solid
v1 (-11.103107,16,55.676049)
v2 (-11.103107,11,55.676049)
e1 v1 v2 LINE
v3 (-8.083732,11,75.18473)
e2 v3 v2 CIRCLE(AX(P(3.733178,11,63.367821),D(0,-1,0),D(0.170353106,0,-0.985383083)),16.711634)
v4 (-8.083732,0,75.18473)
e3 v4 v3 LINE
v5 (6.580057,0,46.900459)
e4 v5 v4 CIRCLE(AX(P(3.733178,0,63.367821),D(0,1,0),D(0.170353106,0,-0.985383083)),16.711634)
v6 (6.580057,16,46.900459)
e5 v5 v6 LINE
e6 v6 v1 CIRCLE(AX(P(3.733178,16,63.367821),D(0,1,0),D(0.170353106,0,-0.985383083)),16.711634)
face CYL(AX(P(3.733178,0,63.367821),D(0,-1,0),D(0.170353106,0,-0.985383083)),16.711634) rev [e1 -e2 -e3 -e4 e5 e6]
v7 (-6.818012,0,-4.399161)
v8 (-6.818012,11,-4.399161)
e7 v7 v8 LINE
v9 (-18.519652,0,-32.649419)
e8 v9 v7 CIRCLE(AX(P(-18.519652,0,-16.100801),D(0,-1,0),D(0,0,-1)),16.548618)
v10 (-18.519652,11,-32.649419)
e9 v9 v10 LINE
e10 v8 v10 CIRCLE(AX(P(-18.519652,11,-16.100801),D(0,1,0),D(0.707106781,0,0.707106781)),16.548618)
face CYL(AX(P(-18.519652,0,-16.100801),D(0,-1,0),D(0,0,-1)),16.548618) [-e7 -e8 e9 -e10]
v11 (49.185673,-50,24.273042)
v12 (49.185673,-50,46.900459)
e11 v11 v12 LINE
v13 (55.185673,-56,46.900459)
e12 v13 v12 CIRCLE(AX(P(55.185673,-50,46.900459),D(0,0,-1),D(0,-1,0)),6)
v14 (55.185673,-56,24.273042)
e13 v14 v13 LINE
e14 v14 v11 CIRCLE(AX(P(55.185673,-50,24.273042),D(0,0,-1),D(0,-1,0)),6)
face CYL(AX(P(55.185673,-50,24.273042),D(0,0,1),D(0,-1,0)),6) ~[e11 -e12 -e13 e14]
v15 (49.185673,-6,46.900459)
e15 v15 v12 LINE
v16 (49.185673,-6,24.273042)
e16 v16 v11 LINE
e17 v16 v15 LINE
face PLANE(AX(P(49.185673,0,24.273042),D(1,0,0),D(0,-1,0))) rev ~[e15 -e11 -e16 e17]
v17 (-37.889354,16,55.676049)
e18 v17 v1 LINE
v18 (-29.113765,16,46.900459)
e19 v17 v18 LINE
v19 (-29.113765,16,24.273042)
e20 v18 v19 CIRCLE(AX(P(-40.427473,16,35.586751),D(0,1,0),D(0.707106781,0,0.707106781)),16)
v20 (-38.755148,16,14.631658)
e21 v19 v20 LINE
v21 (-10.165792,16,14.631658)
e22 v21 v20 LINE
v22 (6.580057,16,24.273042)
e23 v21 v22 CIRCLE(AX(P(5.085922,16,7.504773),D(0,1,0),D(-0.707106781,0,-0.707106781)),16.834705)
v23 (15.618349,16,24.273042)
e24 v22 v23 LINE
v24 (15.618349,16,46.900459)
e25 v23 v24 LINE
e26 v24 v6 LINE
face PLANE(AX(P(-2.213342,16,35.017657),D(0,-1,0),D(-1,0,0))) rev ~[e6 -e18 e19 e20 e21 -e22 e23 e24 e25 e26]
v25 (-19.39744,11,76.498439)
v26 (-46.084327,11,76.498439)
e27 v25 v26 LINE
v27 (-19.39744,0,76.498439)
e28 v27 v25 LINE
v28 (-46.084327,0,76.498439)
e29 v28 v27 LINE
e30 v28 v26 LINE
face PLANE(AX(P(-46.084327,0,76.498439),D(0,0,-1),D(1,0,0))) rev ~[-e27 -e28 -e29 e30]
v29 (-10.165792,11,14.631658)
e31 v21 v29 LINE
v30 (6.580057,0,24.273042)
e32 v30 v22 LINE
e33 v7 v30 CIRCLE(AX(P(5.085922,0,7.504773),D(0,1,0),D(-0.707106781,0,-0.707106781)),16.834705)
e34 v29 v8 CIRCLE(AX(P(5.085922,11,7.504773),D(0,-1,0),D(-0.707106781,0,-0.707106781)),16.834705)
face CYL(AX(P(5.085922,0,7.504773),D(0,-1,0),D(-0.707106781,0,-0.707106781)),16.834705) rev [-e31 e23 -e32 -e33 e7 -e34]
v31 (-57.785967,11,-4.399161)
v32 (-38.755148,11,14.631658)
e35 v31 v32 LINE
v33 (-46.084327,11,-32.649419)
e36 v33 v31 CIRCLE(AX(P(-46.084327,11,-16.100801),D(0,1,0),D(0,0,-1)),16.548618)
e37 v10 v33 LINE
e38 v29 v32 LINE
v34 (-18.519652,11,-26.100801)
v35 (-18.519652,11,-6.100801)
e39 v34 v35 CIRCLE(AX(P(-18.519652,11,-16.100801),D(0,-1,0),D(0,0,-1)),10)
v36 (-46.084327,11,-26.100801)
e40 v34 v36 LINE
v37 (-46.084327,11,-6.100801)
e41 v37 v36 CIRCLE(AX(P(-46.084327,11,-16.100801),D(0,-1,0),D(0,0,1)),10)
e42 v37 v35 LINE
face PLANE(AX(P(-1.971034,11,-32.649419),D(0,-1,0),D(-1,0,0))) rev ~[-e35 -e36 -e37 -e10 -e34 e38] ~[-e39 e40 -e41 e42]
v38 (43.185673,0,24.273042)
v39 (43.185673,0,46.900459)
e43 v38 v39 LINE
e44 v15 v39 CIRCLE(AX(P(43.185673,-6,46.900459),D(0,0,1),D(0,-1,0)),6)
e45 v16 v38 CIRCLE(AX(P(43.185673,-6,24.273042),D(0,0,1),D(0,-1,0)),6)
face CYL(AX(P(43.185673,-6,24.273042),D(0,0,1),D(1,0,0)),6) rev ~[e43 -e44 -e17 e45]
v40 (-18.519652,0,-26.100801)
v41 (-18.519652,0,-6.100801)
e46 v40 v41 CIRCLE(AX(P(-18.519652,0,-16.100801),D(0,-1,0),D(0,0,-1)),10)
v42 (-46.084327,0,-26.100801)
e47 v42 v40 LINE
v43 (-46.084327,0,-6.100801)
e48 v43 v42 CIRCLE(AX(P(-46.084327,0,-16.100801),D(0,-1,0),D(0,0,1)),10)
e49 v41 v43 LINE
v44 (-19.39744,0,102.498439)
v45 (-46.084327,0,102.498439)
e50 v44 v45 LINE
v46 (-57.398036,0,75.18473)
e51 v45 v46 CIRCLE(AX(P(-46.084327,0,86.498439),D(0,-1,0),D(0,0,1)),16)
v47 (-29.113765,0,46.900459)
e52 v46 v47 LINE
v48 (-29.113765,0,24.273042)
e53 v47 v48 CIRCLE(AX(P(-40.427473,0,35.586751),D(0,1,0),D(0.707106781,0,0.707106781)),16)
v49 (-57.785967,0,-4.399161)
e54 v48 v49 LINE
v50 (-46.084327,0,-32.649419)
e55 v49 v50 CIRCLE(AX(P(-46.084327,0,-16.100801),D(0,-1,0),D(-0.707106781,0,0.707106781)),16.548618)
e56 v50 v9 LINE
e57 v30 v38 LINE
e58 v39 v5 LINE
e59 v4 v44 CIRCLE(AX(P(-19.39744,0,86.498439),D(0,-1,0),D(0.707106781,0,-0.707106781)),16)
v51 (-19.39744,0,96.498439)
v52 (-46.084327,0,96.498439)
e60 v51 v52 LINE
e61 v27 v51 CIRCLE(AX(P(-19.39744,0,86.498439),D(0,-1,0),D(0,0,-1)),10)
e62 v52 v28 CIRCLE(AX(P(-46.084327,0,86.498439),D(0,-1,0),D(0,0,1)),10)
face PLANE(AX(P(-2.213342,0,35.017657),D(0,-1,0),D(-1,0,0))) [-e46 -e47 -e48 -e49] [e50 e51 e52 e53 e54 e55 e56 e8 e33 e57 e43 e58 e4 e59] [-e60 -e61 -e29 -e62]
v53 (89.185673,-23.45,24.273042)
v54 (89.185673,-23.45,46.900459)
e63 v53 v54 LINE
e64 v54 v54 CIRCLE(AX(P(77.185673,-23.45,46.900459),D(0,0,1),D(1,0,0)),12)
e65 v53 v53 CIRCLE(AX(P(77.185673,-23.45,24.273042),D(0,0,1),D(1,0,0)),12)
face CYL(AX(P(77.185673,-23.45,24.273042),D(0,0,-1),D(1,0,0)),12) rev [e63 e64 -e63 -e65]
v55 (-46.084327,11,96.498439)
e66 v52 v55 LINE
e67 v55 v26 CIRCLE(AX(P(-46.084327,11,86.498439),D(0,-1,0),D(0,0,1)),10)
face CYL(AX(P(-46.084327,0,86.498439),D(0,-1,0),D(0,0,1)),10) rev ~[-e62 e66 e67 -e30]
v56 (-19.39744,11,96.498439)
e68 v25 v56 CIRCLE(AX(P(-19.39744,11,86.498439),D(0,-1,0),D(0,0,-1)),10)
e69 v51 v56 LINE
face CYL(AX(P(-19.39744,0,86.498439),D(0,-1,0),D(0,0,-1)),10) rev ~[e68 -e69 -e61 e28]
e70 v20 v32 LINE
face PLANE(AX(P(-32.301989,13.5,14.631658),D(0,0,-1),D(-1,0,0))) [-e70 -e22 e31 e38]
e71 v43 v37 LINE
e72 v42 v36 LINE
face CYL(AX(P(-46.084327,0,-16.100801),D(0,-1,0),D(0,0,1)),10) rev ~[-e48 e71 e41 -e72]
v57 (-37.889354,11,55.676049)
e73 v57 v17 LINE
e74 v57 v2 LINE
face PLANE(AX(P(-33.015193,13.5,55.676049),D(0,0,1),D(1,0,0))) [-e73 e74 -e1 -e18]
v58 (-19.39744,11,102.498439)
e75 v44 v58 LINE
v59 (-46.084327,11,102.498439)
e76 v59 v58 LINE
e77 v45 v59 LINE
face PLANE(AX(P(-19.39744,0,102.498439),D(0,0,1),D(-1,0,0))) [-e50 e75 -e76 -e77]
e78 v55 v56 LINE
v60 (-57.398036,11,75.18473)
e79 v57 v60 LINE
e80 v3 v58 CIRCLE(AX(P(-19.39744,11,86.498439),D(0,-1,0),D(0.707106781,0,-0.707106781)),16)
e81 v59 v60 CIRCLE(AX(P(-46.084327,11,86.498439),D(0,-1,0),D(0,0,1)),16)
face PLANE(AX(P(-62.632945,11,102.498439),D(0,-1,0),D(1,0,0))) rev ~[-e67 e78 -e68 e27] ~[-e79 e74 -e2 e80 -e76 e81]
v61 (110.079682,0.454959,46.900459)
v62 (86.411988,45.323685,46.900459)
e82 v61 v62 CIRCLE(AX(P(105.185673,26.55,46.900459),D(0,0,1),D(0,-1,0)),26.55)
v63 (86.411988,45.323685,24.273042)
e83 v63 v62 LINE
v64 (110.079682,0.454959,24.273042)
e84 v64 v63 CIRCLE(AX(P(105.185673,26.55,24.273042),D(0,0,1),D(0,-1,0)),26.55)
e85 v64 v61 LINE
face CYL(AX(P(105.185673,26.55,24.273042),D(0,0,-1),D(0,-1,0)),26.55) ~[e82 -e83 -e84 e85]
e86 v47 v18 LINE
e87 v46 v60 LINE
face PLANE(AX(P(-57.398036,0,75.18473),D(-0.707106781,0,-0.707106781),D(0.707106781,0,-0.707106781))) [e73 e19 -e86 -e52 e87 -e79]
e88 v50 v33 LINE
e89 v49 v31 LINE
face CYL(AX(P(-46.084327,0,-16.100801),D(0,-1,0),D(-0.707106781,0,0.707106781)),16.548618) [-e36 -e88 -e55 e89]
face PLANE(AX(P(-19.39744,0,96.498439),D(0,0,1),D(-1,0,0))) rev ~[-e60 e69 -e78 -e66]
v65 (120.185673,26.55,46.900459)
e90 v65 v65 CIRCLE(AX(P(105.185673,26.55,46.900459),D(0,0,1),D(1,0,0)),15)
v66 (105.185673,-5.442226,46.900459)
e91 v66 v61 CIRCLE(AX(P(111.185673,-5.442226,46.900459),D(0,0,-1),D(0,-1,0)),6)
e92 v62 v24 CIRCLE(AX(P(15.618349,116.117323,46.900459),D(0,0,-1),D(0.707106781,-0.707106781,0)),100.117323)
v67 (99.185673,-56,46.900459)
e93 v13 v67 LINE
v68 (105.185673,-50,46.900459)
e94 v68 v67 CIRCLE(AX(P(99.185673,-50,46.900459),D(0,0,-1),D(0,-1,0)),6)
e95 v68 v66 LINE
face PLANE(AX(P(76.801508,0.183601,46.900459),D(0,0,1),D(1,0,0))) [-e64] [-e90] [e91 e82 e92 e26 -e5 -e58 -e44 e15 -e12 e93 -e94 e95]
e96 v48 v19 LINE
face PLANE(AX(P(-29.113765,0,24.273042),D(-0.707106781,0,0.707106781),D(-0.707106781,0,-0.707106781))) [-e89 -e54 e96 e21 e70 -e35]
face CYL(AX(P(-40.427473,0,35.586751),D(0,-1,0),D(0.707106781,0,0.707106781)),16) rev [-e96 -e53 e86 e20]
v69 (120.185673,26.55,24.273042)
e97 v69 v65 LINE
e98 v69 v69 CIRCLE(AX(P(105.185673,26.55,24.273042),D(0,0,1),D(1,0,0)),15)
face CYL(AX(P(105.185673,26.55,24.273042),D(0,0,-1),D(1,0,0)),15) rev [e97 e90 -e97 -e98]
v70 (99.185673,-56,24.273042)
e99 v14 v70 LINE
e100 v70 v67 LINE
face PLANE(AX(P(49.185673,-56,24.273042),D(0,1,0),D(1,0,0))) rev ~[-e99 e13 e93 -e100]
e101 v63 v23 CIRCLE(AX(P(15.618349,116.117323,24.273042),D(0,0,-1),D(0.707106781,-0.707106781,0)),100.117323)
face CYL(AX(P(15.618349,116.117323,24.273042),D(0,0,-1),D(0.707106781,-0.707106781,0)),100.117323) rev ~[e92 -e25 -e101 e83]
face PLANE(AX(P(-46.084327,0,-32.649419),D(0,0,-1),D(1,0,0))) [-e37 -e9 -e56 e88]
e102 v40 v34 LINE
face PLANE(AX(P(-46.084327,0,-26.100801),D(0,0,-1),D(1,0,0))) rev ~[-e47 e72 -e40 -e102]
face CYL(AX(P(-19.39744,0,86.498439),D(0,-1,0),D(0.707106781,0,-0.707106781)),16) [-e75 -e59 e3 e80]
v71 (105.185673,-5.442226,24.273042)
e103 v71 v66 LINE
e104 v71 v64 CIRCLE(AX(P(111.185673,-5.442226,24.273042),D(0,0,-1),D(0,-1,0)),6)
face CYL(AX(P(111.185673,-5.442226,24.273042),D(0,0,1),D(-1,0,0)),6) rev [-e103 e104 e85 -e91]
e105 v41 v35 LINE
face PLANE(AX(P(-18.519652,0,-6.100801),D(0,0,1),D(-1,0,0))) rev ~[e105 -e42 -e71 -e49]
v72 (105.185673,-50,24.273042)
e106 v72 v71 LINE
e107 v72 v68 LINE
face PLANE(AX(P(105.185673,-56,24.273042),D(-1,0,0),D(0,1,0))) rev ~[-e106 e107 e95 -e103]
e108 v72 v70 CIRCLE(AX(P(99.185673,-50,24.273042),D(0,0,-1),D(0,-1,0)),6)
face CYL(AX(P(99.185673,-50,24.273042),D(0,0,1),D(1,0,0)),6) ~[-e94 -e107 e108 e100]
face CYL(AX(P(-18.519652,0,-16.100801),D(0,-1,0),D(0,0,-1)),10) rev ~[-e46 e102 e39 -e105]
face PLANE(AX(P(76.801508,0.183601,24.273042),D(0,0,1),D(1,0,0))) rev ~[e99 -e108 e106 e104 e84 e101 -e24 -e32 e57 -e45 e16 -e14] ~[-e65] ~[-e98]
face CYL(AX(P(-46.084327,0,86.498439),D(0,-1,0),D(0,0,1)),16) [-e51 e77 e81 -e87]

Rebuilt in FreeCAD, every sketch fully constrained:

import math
import FreeCAD as App
import Part
import Sketcher

V = App.Vector


def edges_at(feature, points):
    """Names of the edges that pass closest to the given points."""
    edges = feature.Shape.Edges
    near = lambda p: min(range(len(edges)), key=lambda i: edges[i].distToShape(Part.Vertex(*p))[0])
    return sorted({f"Edge{near(p) + 1}" for p in points})

doc = App.newDocument("Part")
body = doc.addObject("PartDesign::Body", "Body")

# Sketch on XZ plane
sketch1 = body.newObject("Sketcher::SketchObject", "Sketch")
sketch1.AttachmentSupport = (doc.getObject("XZ_Plane"), [""])
sketch1.MapMode = "FlatFace"
sketch1.addGeometry(Part.LineSegment(V(-18.519652, -32.649419, 0), V(-46.084327, -32.649419, 0)), False)
sketch1.addGeometry(Part.ArcOfCircle(Part.Circle(V(-46.084327, -16.100801, 0), V(0, 0, 1), 16.548618), math.radians(135), math.radians(270)), False)
sketch1.addGeometry(Part.LineSegment(V(-57.785967, -4.399161, 0), V(-29.113765, 24.273042, 0)), False)
sketch1.addGeometry(Part.ArcOfCircle(Part.Circle(V(-40.427473, 35.586751, 0), V(0, 0, 1), 16), math.radians(-45), math.radians(45)), False)
sketch1.addGeometry(Part.LineSegment(V(-29.113765, 46.900459, 0), V(-57.398036, 75.18473, 0)), False)
sketch1.addGeometry(Part.ArcOfCircle(Part.Circle(V(-46.084327, 86.498439, 0), V(0, 0, 1), 16), math.radians(90), math.radians(225)), False)
sketch1.addGeometry(Part.LineSegment(V(-46.084327, 102.498439, 0), V(-19.39744, 102.498439, 0)), False)
sketch1.addGeometry(Part.ArcOfCircle(Part.Circle(V(-19.39744, 86.498439, 0), V(0, 0, 1), 16), math.radians(-45), math.radians(90)), False)
sketch1.addGeometry(Part.ArcOfCircle(Part.Circle(V(3.733178, 63.367821, 0), V(0, 0, 1), 16.711634), math.radians(135), math.radians(279.80835)), False)
sketch1.addGeometry(Part.LineSegment(V(6.580057, 46.900459, 0), V(89.580057, 46.900459, 0)), False)
sketch1.addGeometry(Part.LineSegment(V(89.580057, 46.900459, 0), V(89.580057, 24.273042, 0)), False)
sketch1.addGeometry(Part.LineSegment(V(89.580057, 24.273042, 0), V(6.580057, 24.273042, 0)), False)
sketch1.addGeometry(Part.ArcOfCircle(Part.Circle(V(5.085922, 7.504773, 0), V(0, 0, 1), 16.834705), math.radians(84.908114), math.radians(225)), False)
sketch1.addGeometry(Part.ArcOfCircle(Part.Circle(V(-18.519652, -16.100801, 0), V(0, 0, 1), 16.548618), math.radians(-90), math.radians(45)), False)
sketch1.addGeometry(Part.LineSegment(V(-46.084327, 76.498439, 0), V(-19.39744, 76.498439, 0)), False)
sketch1.addGeometry(Part.ArcOfCircle(Part.Circle(V(-19.39744, 86.498439, 0), V(0, 0, 1), 10), math.radians(-90), math.radians(90)), False)
sketch1.addGeometry(Part.LineSegment(V(-19.39744, 96.498439, 0), V(-46.084327, 96.498439, 0)), False)
sketch1.addGeometry(Part.ArcOfCircle(Part.Circle(V(-46.084327, 86.498439, 0), V(0, 0, 1), 10), math.radians(90), math.radians(270)), False)
sketch1.addGeometry(Part.LineSegment(V(-46.084327, -26.100801, 0), V(-18.519652, -26.100801, 0)), False)
sketch1.addGeometry(Part.ArcOfCircle(Part.Circle(V(-18.519652, -16.100801, 0), V(0, 0, 1), 10), math.radians(-90), math.radians(90)), False)
sketch1.addGeometry(Part.LineSegment(V(-18.519652, -6.100801, 0), V(-46.084327, -6.100801, 0)), False)
sketch1.addGeometry(Part.ArcOfCircle(Part.Circle(V(-46.084327, -16.100801, 0), V(0, 0, 1), 10), math.radians(90), math.radians(270)), False)
sketch1.addConstraint(Sketcher.Constraint("Tangent", 0, 2, 1, 2))
sketch1.addConstraint(Sketcher.Constraint("Tangent", 1, 1, 2, 1))
sketch1.addConstraint(Sketcher.Constraint("Tangent", 2, 2, 3, 1))
sketch1.addConstraint(Sketcher.Constraint("Tangent", 3, 2, 4, 1))
sketch1.addConstraint(Sketcher.Constraint("Tangent", 4, 2, 5, 2))
sketch1.addConstraint(Sketcher.Constraint("Tangent", 5, 1, 6, 1))
sketch1.addConstraint(Sketcher.Constraint("Tangent", 6, 2, 7, 2))
sketch1.addConstraint(Sketcher.Constraint("Tangent", 7, 1, 8, 1))
sketch1.addConstraint(Sketcher.Constraint("Coincident", 8, 2, 9, 1))
sketch1.addConstraint(Sketcher.Constraint("Coincident", 9, 2, 10, 1))
sketch1.addConstraint(Sketcher.Constraint("Coincident", 10, 2, 11, 1))
sketch1.addConstraint(Sketcher.Constraint("Coincident", 11, 2, 12, 1))
sketch1.addConstraint(Sketcher.Constraint("Tangent", 12, 2, 13, 2))
sketch1.addConstraint(Sketcher.Constraint("Tangent", 13, 1, 0, 1))
sketch1.addConstraint(Sketcher.Constraint("Tangent", 14, 2, 15, 1))
sketch1.addConstraint(Sketcher.Constraint("Tangent", 15, 2, 16, 1))
sketch1.addConstraint(Sketcher.Constraint("Tangent", 16, 2, 17, 1))
sketch1.addConstraint(Sketcher.Constraint("Tangent", 17, 2, 14, 1))
sketch1.addConstraint(Sketcher.Constraint("Tangent", 18, 2, 19, 1))
sketch1.addConstraint(Sketcher.Constraint("Tangent", 19, 2, 20, 1))
sketch1.addConstraint(Sketcher.Constraint("Tangent", 20, 2, 21, 1))
sketch1.addConstraint(Sketcher.Constraint("Tangent", 21, 2, 18, 1))
sketch1.addConstraint(Sketcher.Constraint("Horizontal", 0))
sketch1.addConstraint(Sketcher.Constraint("Horizontal", 6))
sketch1.addConstraint(Sketcher.Constraint("Horizontal", 9))
sketch1.addConstraint(Sketcher.Constraint("Vertical", 10))
sketch1.addConstraint(Sketcher.Constraint("Horizontal", 11))
sketch1.addConstraint(Sketcher.Constraint("Horizontal", 14))
sketch1.addConstraint(Sketcher.Constraint("Horizontal", 16))
sketch1.addConstraint(Sketcher.Constraint("Horizontal", 18))
sketch1.addConstraint(Sketcher.Constraint("Horizontal", 20))
sketch1.addConstraint(Sketcher.Constraint("Coincident", 15, 3, 7, 3))
sketch1.addConstraint(Sketcher.Constraint("Coincident", 17, 3, 5, 3))
sketch1.addConstraint(Sketcher.Constraint("Coincident", 19, 3, 13, 3))
sketch1.addConstraint(Sketcher.Constraint("Coincident", 21, 3, 1, 3))
sketch1.addConstraint(Sketcher.Constraint("Equal", 3, 5))
sketch1.addConstraint(Sketcher.Constraint("Equal", 17, 19))
sketch1.addConstraint(Sketcher.Constraint("Perpendicular", 2, 4))
sketch1.addConstraint(Sketcher.Constraint("Horizontal", 4, 2, 7, 1))
sketch1.addConstraint(Sketcher.Constraint("Horizontal", 3, 2, 8, 2))
sketch1.addConstraint(Sketcher.Constraint("Horizontal", 2, 2, 10, 2))
sketch1.addConstraint(Sketcher.Constraint("Horizontal", 1, 1, 12, 2))
sketch1.addConstraint(Sketcher.Constraint("Vertical", 1, 3, 5, 3))
sketch1.addConstraint(Sketcher.Constraint("Vertical", 2, 2, 3, 2))
sketch1.addConstraint(Sketcher.Constraint("Vertical", 8, 2, 11, 2))
sketch1.addConstraint(Sketcher.Constraint("Radius", 3, 16.0))
sketch1.addConstraint(Sketcher.Constraint("Radius", 15, 10.0))
sketch1.addConstraint(Sketcher.Constraint("DistanceX", 9, 1, 9, 2, 83.0))
sketch1.addConstraint(Sketcher.Constraint("Distance", 4, 40.0))
sketch1.addConstraint(Sketcher.Constraint("Radius", 1, 16.548618))
sketch1.addConstraint(Sketcher.Constraint("Radius", 8, 16.711634))
sketch1.addConstraint(Sketcher.Constraint("Radius", 12, 16.834705))
sketch1.addConstraint(Sketcher.Constraint("DistanceY", 1, 3, -1, 1, 16.100801))
sketch1.addConstraint(Sketcher.Constraint("DistanceX", 0, 2, 0, 1, 27.564676))
sketch1.addConstraint(Sketcher.Constraint("DistanceX", 7, 3, -1, 1, 19.39744))
pad1 = body.newObject("PartDesign::Pad", "Pad")
pad1.Profile = sketch1
pad1.Length = 16
pad1.Reversed = True

# Sketch on XY plane
sketch2 = body.newObject("Sketcher::SketchObject", "Sketch001")
sketch2.AttachmentSupport = (doc.getObject("XY_Plane"), [""])
sketch2.MapMode = "FlatFace"
sketch2.AttachmentOffset = App.Placement(V(0, 0, 24.273042), App.Rotation())
sketch2.addGeometry(Part.LineSegment(V(105.185673, -56, 0), V(105.185673, 0, 0)), False)
sketch2.addGeometry(Part.ArcOfCircle(Part.Circle(V(105.185673, 26.55, 0), V(0, 0, 1), 26.55), math.radians(-90), math.radians(135)), False)
sketch2.addGeometry(Part.ArcOfCircle(Part.Circle(V(15.618349, 116.117323, 0), V(0, 0, 1), 100.117323), math.radians(-90), math.radians(-45)), False)
sketch2.addGeometry(Part.LineSegment(V(15.618349, 16, 0), V(89.580057, 16, 0)), False)
sketch2.addGeometry(Part.LineSegment(V(89.580057, 16, 0), V(89.580057, 0, 0)), False)
sketch2.addGeometry(Part.LineSegment(V(89.580057, 0, 0), V(49.185673, 0, 0)), False)
sketch2.addGeometry(Part.LineSegment(V(49.185673, 0, 0), V(49.185673, -56, 0)), False)
sketch2.addGeometry(Part.LineSegment(V(49.185673, -56, 0), V(105.185673, -56, 0)), False)
sketch2.addGeometry(Part.Circle(V(77.185673, -23.45, 0), V(0, 0, 1), 12), False)
sketch2.addGeometry(Part.Circle(V(105.185673, 26.55, 0), V(0, 0, 1), 15), False)
sketch2.addConstraint(Sketcher.Constraint("Coincident", 0, 2, 1, 1))
sketch2.addConstraint(Sketcher.Constraint("Tangent", 1, 2, 2, 2))
sketch2.addConstraint(Sketcher.Constraint("Tangent", 2, 1, 3, 1))
sketch2.addConstraint(Sketcher.Constraint("Coincident", 3, 2, 4, 1))
sketch2.addConstraint(Sketcher.Constraint("Coincident", 4, 2, 5, 1))
sketch2.addConstraint(Sketcher.Constraint("Coincident", 5, 2, 6, 1))
sketch2.addConstraint(Sketcher.Constraint("Coincident", 6, 2, 7, 1))
sketch2.addConstraint(Sketcher.Constraint("Coincident", 7, 2, 0, 1))
sketch2.addConstraint(Sketcher.Constraint("Vertical", 0))
sketch2.addConstraint(Sketcher.Constraint("Horizontal", 3))
sketch2.addConstraint(Sketcher.Constraint("Vertical", 4))
sketch2.addConstraint(Sketcher.Constraint("Horizontal", 5))
sketch2.addConstraint(Sketcher.Constraint("Vertical", 6))
sketch2.addConstraint(Sketcher.Constraint("Horizontal", 7))
sketch2.addConstraint(Sketcher.Constraint("Coincident", 9, 3, 1, 3))
sketch2.addConstraint(Sketcher.Constraint("PointOnObject", 0, 2, -1))
sketch2.addConstraint(Sketcher.Constraint("PointOnObject", 4, 2, -1))
sketch2.addConstraint(Sketcher.Constraint("Vertical", 9, 3, 0, 2))
sketch2.addConstraint(Sketcher.Constraint("Equal", 7, 0))
sketch2.addConstraint(Sketcher.Constraint("Diameter", 8, 24.0))
sketch2.addConstraint(Sketcher.Constraint("Diameter", 9, 30.0))
sketch2.addConstraint(Sketcher.Constraint("DistanceX", 7, 1, 7, 2, 56.0))
sketch2.addConstraint(Sketcher.Constraint("DistanceY", 4, 2, 4, 1, 16.0))
sketch2.addConstraint(Sketcher.Constraint("Radius", 1, 26.55))
sketch2.addConstraint(Sketcher.Constraint("DistanceX", 8, 3, 1, 3, 28.0))
sketch2.addConstraint(Sketcher.Constraint("DistanceY", 8, 3, 1, 3, 50.0))
sketch2.addConstraint(Sketcher.Constraint("Radius", 2, 100.117323))
sketch2.addConstraint(Sketcher.Constraint("DistanceX", 3, 1, 3, 2, 73.961707))
sketch2.addConstraint(Sketcher.Constraint("DistanceX", -1, 1, 2, 3, 15.618349))
pad2 = body.newObject("PartDesign::Pad", "Pad001")
pad2.Profile = sketch2
pad2.Length = 22.627417
doc.recompute()

fillet = body.newObject("PartDesign::Fillet", "Fillet")
fillet.Base = (pad2, edges_at(pad2, [
    (105.186, 0, 35.587),
    (105.186, -56, 35.587),
    (49.186, -56, 35.587),
    (49.186, 0, 35.587),
]))
fillet.Radius = 6

# Sketch on XY plane
sketch3 = body.newObject("Sketcher::SketchObject", "Sketch002")
sketch3.AttachmentSupport = (doc.getObject("XY_Plane"), [""])
sketch3.MapMode = "FlatFace"
sketch3.AttachmentOffset = App.Placement(V(0, 0, 102.498439), App.Rotation())
sketch3.addGeometry(Part.LineSegment(V(-62.632945, 16, 0), V(-62.632945, 11, 0)), False)
sketch3.addGeometry(Part.LineSegment(V(-62.632945, 11, 0), V(-3.39744, 11, 0)), False)
sketch3.addGeometry(Part.LineSegment(V(-3.39744, 11, 0), V(-3.39744, 16, 0)), False)
sketch3.addGeometry(Part.LineSegment(V(-3.39744, 16, 0), V(-62.632945, 16, 0)), False)
sketch3.addConstraint(Sketcher.Constraint("Coincident", 0, 2, 1, 1))
sketch3.addConstraint(Sketcher.Constraint("Coincident", 1, 2, 2, 1))
sketch3.addConstraint(Sketcher.Constraint("Coincident", 2, 2, 3, 1))
sketch3.addConstraint(Sketcher.Constraint("Coincident", 3, 2, 0, 1))
sketch3.addConstraint(Sketcher.Constraint("Vertical", 0))
sketch3.addConstraint(Sketcher.Constraint("Horizontal", 1))
sketch3.addConstraint(Sketcher.Constraint("Vertical", 2))
sketch3.addConstraint(Sketcher.Constraint("Horizontal", 3))
sketch3.addConstraint(Sketcher.Constraint("DistanceY", 0, 2, 0, 1, 5.0))
sketch3.addConstraint(Sketcher.Constraint("DistanceY", -1, 1, 0, 2, 11.0))
sketch3.addConstraint(Sketcher.Constraint("DistanceX", 1, 1, 1, 2, 59.235505))
sketch3.addConstraint(Sketcher.Constraint("DistanceX", 1, 2, -1, 1, 3.39744))
pocket1 = body.newObject("PartDesign::Pocket", "Pocket")
pocket1.Profile = sketch3
pocket1.Length = 46.82239

# Sketch on XY plane
sketch4 = body.newObject("Sketcher::SketchObject", "Sketch003")
sketch4.AttachmentSupport = (doc.getObject("XY_Plane"), [""])
sketch4.MapMode = "FlatFace"
sketch4.AttachmentOffset = App.Placement(V(0, 0, -32.649419), App.Rotation())
sketch4.addGeometry(Part.LineSegment(V(-1.971034, 16, 0), V(-1.971034, 11, 0)), False)
sketch4.addGeometry(Part.LineSegment(V(-1.971034, 11, 0), V(-62.632945, 11, 0)), False)
sketch4.addGeometry(Part.LineSegment(V(-62.632945, 11, 0), V(-62.632945, 16, 0)), False)
sketch4.addGeometry(Part.LineSegment(V(-62.632945, 16, 0), V(-1.971034, 16, 0)), False)
sketch4.addConstraint(Sketcher.Constraint("Coincident", 0, 2, 1, 1))
sketch4.addConstraint(Sketcher.Constraint("Coincident", 1, 2, 2, 1))
sketch4.addConstraint(Sketcher.Constraint("Coincident", 2, 2, 3, 1))
sketch4.addConstraint(Sketcher.Constraint("Coincident", 3, 2, 0, 1))
sketch4.addConstraint(Sketcher.Constraint("Vertical", 0))
sketch4.addConstraint(Sketcher.Constraint("Horizontal", 1))
sketch4.addConstraint(Sketcher.Constraint("Vertical", 2))
sketch4.addConstraint(Sketcher.Constraint("Horizontal", 3))
sketch4.addConstraint(Sketcher.Constraint("DistanceY", 0, 2, 0, 1, 5.0))
sketch4.addConstraint(Sketcher.Constraint("DistanceY", -1, 1, 0, 2, 11.0))
sketch4.addConstraint(Sketcher.Constraint("DistanceX", 1, 2, 1, 1, 60.661912))
sketch4.addConstraint(Sketcher.Constraint("DistanceX", 0, 2, -1, 1, 1.971034))
pocket2 = body.newObject("PartDesign::Pocket", "Pocket001")
pocket2.Profile = sketch4
pocket2.Length = 47.281077
pocket2.Reversed = True

doc.recompute()
